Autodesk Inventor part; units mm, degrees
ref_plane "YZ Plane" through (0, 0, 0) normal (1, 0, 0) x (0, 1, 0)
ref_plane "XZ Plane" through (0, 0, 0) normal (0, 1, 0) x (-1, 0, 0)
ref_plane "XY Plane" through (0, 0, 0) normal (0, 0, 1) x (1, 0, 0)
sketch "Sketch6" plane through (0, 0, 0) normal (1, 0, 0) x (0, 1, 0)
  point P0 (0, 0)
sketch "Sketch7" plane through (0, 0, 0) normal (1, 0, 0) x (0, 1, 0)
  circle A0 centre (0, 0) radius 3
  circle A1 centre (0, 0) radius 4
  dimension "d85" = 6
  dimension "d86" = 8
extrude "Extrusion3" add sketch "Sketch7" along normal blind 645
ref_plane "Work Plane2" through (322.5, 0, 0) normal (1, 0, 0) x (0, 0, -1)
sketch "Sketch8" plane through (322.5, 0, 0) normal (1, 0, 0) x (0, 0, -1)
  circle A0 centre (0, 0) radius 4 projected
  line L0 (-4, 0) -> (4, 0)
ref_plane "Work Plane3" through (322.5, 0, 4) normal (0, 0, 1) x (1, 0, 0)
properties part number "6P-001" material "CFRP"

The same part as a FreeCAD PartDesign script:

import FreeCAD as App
import Part
import Sketcher

V = App.Vector
Q = App.Units.Quantity

doc = App.newDocument("Part")
body = doc.addObject("PartDesign::Body", "Body")

# Sketch on YZ plane
sketch1 = doc.addObject("Sketcher::SketchObject", "Sketch")
body.addObject(sketch1)
sketch1.AttachmentSupport = (doc.YZ_Plane, [""])
sketch1.MapMode = "FlatFace"
sketch1.addGeometry(Part.Circle(V(0, 0, 0), V(0, 0, 1), 4), False)
sketch1.addGeometry(Part.Circle(V(0, 0, 0), V(0, 0, 1), 3), False)
sketch1.addConstraint(Sketcher.Constraint("Coincident", 0, 3, -1, 1))
sketch1.addConstraint(Sketcher.Constraint("Coincident", 1, 3, -1, 1))
sketch1.addConstraint(Sketcher.Constraint("Diameter", 0, Q("8 mm")))
sketch1.addConstraint(Sketcher.Constraint("Diameter", 1, Q("6 mm")))
pad1 = doc.addObject("PartDesign::Pad", "Pad")
body.addObject(pad1)
pad1.Profile = sketch1
pad1.Length = 645

doc.recompute()
